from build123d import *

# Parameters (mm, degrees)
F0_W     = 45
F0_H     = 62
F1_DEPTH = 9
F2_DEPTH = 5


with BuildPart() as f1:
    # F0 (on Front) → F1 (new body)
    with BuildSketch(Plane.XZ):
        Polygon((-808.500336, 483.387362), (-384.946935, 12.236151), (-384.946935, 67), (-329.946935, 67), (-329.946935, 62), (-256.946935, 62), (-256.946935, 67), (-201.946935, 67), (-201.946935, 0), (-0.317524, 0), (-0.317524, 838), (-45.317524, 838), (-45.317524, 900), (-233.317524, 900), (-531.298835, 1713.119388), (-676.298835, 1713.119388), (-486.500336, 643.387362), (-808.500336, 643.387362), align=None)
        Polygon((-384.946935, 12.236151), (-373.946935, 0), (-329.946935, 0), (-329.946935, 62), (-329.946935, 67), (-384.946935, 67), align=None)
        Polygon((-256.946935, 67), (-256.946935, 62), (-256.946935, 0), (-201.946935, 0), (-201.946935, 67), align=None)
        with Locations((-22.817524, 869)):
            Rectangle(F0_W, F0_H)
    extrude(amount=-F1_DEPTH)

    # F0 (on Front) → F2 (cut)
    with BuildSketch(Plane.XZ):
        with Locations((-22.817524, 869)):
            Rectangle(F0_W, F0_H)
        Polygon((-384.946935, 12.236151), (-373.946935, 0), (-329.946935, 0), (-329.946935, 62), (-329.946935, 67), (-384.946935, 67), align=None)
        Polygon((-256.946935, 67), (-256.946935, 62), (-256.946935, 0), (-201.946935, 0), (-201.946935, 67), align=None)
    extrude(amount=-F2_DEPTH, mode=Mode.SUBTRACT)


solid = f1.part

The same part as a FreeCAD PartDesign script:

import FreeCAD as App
import Part
import Sketcher

V = App.Vector

doc = App.newDocument("Part")
params = doc.addObject("Spreadsheet::Sheet", "Params")
for row, (alias, value) in enumerate([
    ("sketch1_width", "44 mm"),
    ("sketch1_width2", "73 mm"),
    ("sketch1_width3", "233 mm"),
    ("sketch1_width4", "145 mm"),
    ("sketch1_width5", "322 mm"),
    ("pad1_length", "9 mm"),
    ("sketch2_width", "45 mm"),
    ("sketch2_width2", "44 mm"),
    ("sketch2_width3", "55 mm"),
    ("sketch2_height", "62 mm"),
    ("sketch2_height2", "67 mm"),
    ("pocket1_length", "5 mm"),
], start=1):
    params.set(f"A{row}", alias)
    params.set(f"B{row}", "=" + value)
    params.setAlias(f"B{row}", alias)

body = doc.addObject("PartDesign::Body", "Body")

# Sketch on XZ plane
sketch1 = body.newObject("Sketcher::SketchObject", "Sketch")
sketch1.AttachmentSupport = (doc.getObject("XZ_Plane"), [""])
sketch1.MapMode = "FlatFace"
sketch1.addGeometry(Part.LineSegment(V(-808.500336, 483.387362, 0), V(-384.946935, 12.236151, 0)), False)
sketch1.addGeometry(Part.LineSegment(V(-384.946935, 12.236151, 0), V(-373.946935, 0, 0)), False)
sketch1.addGeometry(Part.LineSegment(V(-373.946935, 0, 0), V(-329.946935, 0, 0)), False)
sketch1.addGeometry(Part.LineSegment(V(-329.946935, 0, 0), V(-329.946935, 62, 0)), False)
sketch1.addGeometry(Part.LineSegment(V(-329.946935, 62, 0), V(-256.946935, 62, 0)), False)
sketch1.addGeometry(Part.LineSegment(V(-256.946935, 62, 0), V(-256.946935, 0, 0)), False)
sketch1.addGeometry(Part.LineSegment(V(-256.946935, 0, 0), V(-0.317524, 0, 0)), False)
sketch1.addGeometry(Part.LineSegment(V(-0.317524, 0, 0), V(-0.317524, 900, 0)), False)
sketch1.addGeometry(Part.LineSegment(V(-0.317524, 900, 0), V(-233.317524, 900, 0)), False)
sketch1.addGeometry(Part.LineSegment(V(-233.317524, 900, 0), V(-531.298835, 1713.119388, 0)), False)
sketch1.addGeometry(Part.LineSegment(V(-531.298835, 1713.119388, 0), V(-676.298835, 1713.119388, 0)), False)
sketch1.addGeometry(Part.LineSegment(V(-676.298835, 1713.119388, 0), V(-486.500336, 643.387362, 0)), False)
sketch1.addGeometry(Part.LineSegment(V(-486.500336, 643.387362, 0), V(-808.500336, 643.387362, 0)), False)
sketch1.addGeometry(Part.LineSegment(V(-808.500336, 643.387362, 0), V(-808.500336, 483.387362, 0)), False)
sketch1.addConstraint(Sketcher.Constraint("Coincident", 0, 2, 1, 1))
sketch1.addConstraint(Sketcher.Constraint("Coincident", 1, 2, 2, 1))
sketch1.addConstraint(Sketcher.Constraint("Coincident", 2, 2, 3, 1))
sketch1.addConstraint(Sketcher.Constraint("Coincident", 3, 2, 4, 1))
sketch1.addConstraint(Sketcher.Constraint("Coincident", 4, 2, 5, 1))
sketch1.addConstraint(Sketcher.Constraint("Coincident", 5, 2, 6, 1))
sketch1.addConstraint(Sketcher.Constraint("Coincident", 6, 2, 7, 1))
sketch1.addConstraint(Sketcher.Constraint("Coincident", 7, 2, 8, 1))
sketch1.addConstraint(Sketcher.Constraint("Coincident", 8, 2, 9, 1))
sketch1.addConstraint(Sketcher.Constraint("Coincident", 9, 2, 10, 1))
sketch1.addConstraint(Sketcher.Constraint("Coincident", 10, 2, 11, 1))
sketch1.addConstraint(Sketcher.Constraint("Coincident", 11, 2, 12, 1))
sketch1.addConstraint(Sketcher.Constraint("Coincident", 12, 2, 13, 1))
sketch1.addConstraint(Sketcher.Constraint("Coincident", 13, 2, 0, 1))
sketch1.addConstraint(Sketcher.Constraint("Horizontal", 2))
sketch1.addConstraint(Sketcher.Constraint("Vertical", 3))
sketch1.addConstraint(Sketcher.Constraint("Horizontal", 4))
sketch1.addConstraint(Sketcher.Constraint("Vertical", 5))
sketch1.addConstraint(Sketcher.Constraint("Horizontal", 6))
sketch1.addConstraint(Sketcher.Constraint("Vertical", 7))
sketch1.addConstraint(Sketcher.Constraint("Horizontal", 8))
sketch1.addConstraint(Sketcher.Constraint("Horizontal", 10))
sketch1.addConstraint(Sketcher.Constraint("Horizontal", 12))
sketch1.addConstraint(Sketcher.Constraint("Vertical", 13))
sketch1.addConstraint(Sketcher.Constraint("PointOnObject", 1, 2, -1))
sketch1.addConstraint(Sketcher.Constraint("PointOnObject", 5, 2, -1))
sketch1.addConstraint(Sketcher.Constraint("Parallel", 0, 1))
sketch1.addConstraint(Sketcher.Constraint("DistanceX", 2, 1, 2, 2, 44.0))
sketch1.addConstraint(Sketcher.Constraint("DistanceX", 4, 1, 4, 2, 73.0))
sketch1.addConstraint(Sketcher.Constraint("DistanceX", 8, 2, 8, 1, 233.0))
sketch1.addConstraint(Sketcher.Constraint("DistanceX", 10, 2, 10, 1, 145.0))
sketch1.addConstraint(Sketcher.Constraint("DistanceX", 12, 2, 12, 1, 322.0))
sketch1.addConstraint(Sketcher.Constraint("DistanceY", 3, 1, 3, 2, 62.0))
sketch1.addConstraint(Sketcher.Constraint("DistanceY", 7, 1, 7, 2, 900.0))
sketch1.addConstraint(Sketcher.Constraint("DistanceY", 13, 2, 13, 1, 160.0))
sketch1.addConstraint(Sketcher.Constraint("Distance", 9, 866.0))
sketch1.addConstraint(Sketcher.Constraint("DistanceX", 0, 2, 1, 2, 11.0))
sketch1.addConstraint(Sketcher.Constraint("DistanceX", 6, 1, 6, 2, 256.629411))
sketch1.addConstraint(Sketcher.Constraint("DistanceX", 9, 2, 3, 2, 201.3519))
sketch1.addConstraint(Sketcher.Constraint("DistanceX", 11, 2, 3, 2, 156.553401))
sketch1.addConstraint(Sketcher.Constraint("DistanceY", -1, 1, 0, 2, 12.236151))
sketch1.addConstraint(Sketcher.Constraint("DistanceX", 0, 2, -1, 1, 384.946935))
sketch1.setExpression("Constraints[27]", "Params.sketch1_width")
sketch1.setExpression("Constraints[28]", "Params.sketch1_width2")
sketch1.setExpression("Constraints[29]", "Params.sketch1_width3")
sketch1.setExpression("Constraints[30]", "Params.sketch1_width4")
sketch1.setExpression("Constraints[31]", "Params.sketch1_width5")
pad1 = body.newObject("PartDesign::Pad", "Pad")
pad1.Profile = sketch1
pad1.setExpression("Length", "Params.pad1_length")
pad1.Reversed = True

# Sketch on XZ plane
sketch2 = body.newObject("Sketcher::SketchObject", "Sketch001")
sketch2.AttachmentSupport = (doc.getObject("XZ_Plane"), [""])
sketch2.MapMode = "FlatFace"
sketch2.addGeometry(Part.LineSegment(V(-45.317524, 900, 0), V(-45.317524, 838, 0)), False)
sketch2.addGeometry(Part.LineSegment(V(-45.317524, 838, 0), V(-0.317524, 838, 0)), False)
sketch2.addGeometry(Part.LineSegment(V(-0.317524, 838, 0), V(-0.317524, 900, 0)), False)
sketch2.addGeometry(Part.LineSegment(V(-0.317524, 900, 0), V(-45.317524, 900, 0)), False)
sketch2.addGeometry(Part.LineSegment(V(-384.946935, 12.236151, 0), V(-373.946935, 0, 0)), False)
sketch2.addGeometry(Part.LineSegment(V(-373.946935, 0, 0), V(-329.946935, 0, 0)), False)
sketch2.addGeometry(Part.LineSegment(V(-329.946935, 0, 0), V(-329.946935, 67, 0)), False)
sketch2.addGeometry(Part.LineSegment(V(-329.946935, 67, 0), V(-384.946935, 67, 0)), False)
sketch2.addGeometry(Part.LineSegment(V(-384.946935, 67, 0), V(-384.946935, 12.236151, 0)), False)
sketch2.addGeometry(Part.LineSegment(V(-256.946935, 67, 0), V(-256.946935, 0, 0)), False)
sketch2.addGeometry(Part.LineSegment(V(-256.946935, 0, 0), V(-201.946935, 0, 0)), False)
sketch2.addGeometry(Part.LineSegment(V(-201.946935, 0, 0), V(-201.946935, 67, 0)), False)
sketch2.addGeometry(Part.LineSegment(V(-201.946935, 67, 0), V(-256.946935, 67, 0)), False)
sketch2.addConstraint(Sketcher.Constraint("Coincident", 0, 2, 1, 1))
sketch2.addConstraint(Sketcher.Constraint("Coincident", 1, 2, 2, 1))
sketch2.addConstraint(Sketcher.Constraint("Coincident", 2, 2, 3, 1))
sketch2.addConstraint(Sketcher.Constraint("Coincident", 3, 2, 0, 1))
sketch2.addConstraint(Sketcher.Constraint("Coincident", 4, 2, 5, 1))
sketch2.addConstraint(Sketcher.Constraint("Coincident", 5, 2, 6, 1))
sketch2.addConstraint(Sketcher.Constraint("Coincident", 6, 2, 7, 1))
sketch2.addConstraint(Sketcher.Constraint("Coincident", 7, 2, 8, 1))
sketch2.addConstraint(Sketcher.Constraint("Coincident", 8, 2, 4, 1))
sketch2.addConstraint(Sketcher.Constraint("Coincident", 9, 2, 10, 1))
sketch2.addConstraint(Sketcher.Constraint("Coincident", 10, 2, 11, 1))
sketch2.addConstraint(Sketcher.Constraint("Coincident", 11, 2, 12, 1))
sketch2.addConstraint(Sketcher.Constraint("Coincident", 12, 2, 9, 1))
sketch2.addConstraint(Sketcher.Constraint("Vertical", 0))
sketch2.addConstraint(Sketcher.Constraint("Horizontal", 1))
sketch2.addConstraint(Sketcher.Constraint("Vertical", 2))
sketch2.addConstraint(Sketcher.Constraint("Horizontal", 3))
sketch2.addConstraint(Sketcher.Constraint("Horizontal", 5))
sketch2.addConstraint(Sketcher.Constraint("Vertical", 6))
sketch2.addConstraint(Sketcher.Constraint("Horizontal", 7))
sketch2.addConstraint(Sketcher.Constraint("Vertical", 8))
sketch2.addConstraint(Sketcher.Constraint("Vertical", 9))
sketch2.addConstraint(Sketcher.Constraint("Horizontal", 10))
sketch2.addConstraint(Sketcher.Constraint("Vertical", 11))
sketch2.addConstraint(Sketcher.Constraint("Horizontal", 12))
sketch2.addConstraint(Sketcher.Constraint("PointOnObject", 4, 2, -1))
sketch2.addConstraint(Sketcher.Constraint("PointOnObject", 9, 2, -1))
sketch2.addConstraint(Sketcher.Constraint("Horizontal", 7, 2, 11, 2))
sketch2.addConstraint(Sketcher.Constraint("Equal", 7, 10))
sketch2.addConstraint(Sketcher.Constraint("DistanceX", 1, 1, 1, 2, 45.0))
sketch2.addConstraint(Sketcher.Constraint("DistanceX", 5, 1, 5, 2, 44.0))
sketch2.addConstraint(Sketcher.Constraint("DistanceX", 7, 2, 7, 1, 55.0))
sketch2.addConstraint(Sketcher.Constraint("DistanceY", 0, 2, 0, 1, 62.0))
sketch2.addConstraint(Sketcher.Constraint("DistanceY", 6, 1, 6, 2, 67.0))
sketch2.addConstraint(Sketcher.Constraint("DistanceY", -1, 1, 0, 2, 838.0))
sketch2.addConstraint(Sketcher.Constraint("DistanceX", 5, 2, 9, 2, 73.0))
sketch2.addConstraint(Sketcher.Constraint("DistanceY", 8, 2, 8, 1, 54.763849))
sketch2.addConstraint(Sketcher.Constraint("DistanceX", 4, 2, 0, 2, 328.629411))
sketch2.addConstraint(Sketcher.Constraint("DistanceX", 0, 2, -1, 1, 45.317524))
sketch2.setExpression("Constraints[29]", "Params.sketch2_width")
sketch2.setExpression("Constraints[30]", "Params.sketch2_width2")
sketch2.setExpression("Constraints[31]", "Params.sketch2_width3")
sketch2.setExpression("Constraints[32]", "Params.sketch2_height")
sketch2.setExpression("Constraints[33]", "Params.sketch2_height2")
pocket1 = body.newObject("PartDesign::Pocket", "Pocket")
pocket1.Profile = sketch2
pocket1.setExpression("Length", "Params.pocket1_length")

doc.recompute()
